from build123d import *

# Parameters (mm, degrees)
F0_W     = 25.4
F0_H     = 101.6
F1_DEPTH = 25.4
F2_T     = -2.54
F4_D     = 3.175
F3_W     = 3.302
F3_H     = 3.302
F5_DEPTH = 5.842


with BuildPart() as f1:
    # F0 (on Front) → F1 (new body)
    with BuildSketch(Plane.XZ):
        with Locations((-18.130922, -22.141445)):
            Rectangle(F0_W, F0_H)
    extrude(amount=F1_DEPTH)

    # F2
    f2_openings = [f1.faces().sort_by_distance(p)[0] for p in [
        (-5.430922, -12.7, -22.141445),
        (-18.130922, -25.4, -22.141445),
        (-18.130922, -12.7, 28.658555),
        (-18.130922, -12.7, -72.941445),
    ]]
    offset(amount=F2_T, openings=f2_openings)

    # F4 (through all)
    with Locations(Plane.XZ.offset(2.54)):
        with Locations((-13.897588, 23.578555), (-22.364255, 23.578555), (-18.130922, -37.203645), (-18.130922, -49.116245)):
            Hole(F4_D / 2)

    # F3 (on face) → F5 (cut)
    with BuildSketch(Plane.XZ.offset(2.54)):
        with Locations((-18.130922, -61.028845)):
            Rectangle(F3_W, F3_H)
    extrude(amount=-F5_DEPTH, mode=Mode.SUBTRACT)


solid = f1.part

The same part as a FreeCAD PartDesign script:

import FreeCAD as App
import Part
import Sketcher

V = App.Vector
Q = App.Units.Quantity


def faces_at(feature, points):
    """Names of the faces that lie closest to the given points."""
    faces = feature.Shape.Faces
    near = lambda p: min(range(len(faces)), key=lambda i: faces[i].distToShape(Part.Vertex(*p))[0])
    return sorted({f"Face{near(p) + 1}" for p in points})


def add_polygon(sketch, points):
    """Adds a closed chain of lines whose ends are joined by coincident constraints."""
    first, n = sketch.GeometryCount, len(points)
    for a, b in zip(points, points[1:] + points[:1]):
        sketch.addGeometry(Part.LineSegment(App.Vector(*a, 0), App.Vector(*b, 0)), False)
    for i in range(n):
        sketch.addConstraint(Sketcher.Constraint("Coincident", first + i, 2, first + (i + 1) % n, 1))

doc = App.newDocument("Part")
body = doc.addObject("PartDesign::Body", "Body")

sketch1 = body.newObject("Sketcher::SketchObject", "Sketch")
sketch1.AttachmentSupport = (doc.getObject("XZ_Plane"), [""])
sketch1.MapMode = "FlatFace"
add_polygon(sketch1, [(-31, 29), (-31, -73), (-5, -73), (-5, 29)])
sketch1.addConstraint([
    Sketcher.Constraint("Vertical", 0),
    Sketcher.Constraint("Horizontal", 1),
    Sketcher.Constraint("Vertical", 2),
    Sketcher.Constraint("Horizontal", 3),
    Sketcher.Constraint("DistanceX", 1, 1, 1, 2, Q("1 in")),
    Sketcher.Constraint("DistanceY", 0, 2, 0, 1, Q("4 in")),
    Sketcher.Constraint("DistanceX", 1, 2, -1, 1, 5.430922),
    Sketcher.Constraint("DistanceY", 0, 2, -1, 1, 72.941445),
])
pad1 = body.newObject("PartDesign::Pad", "Pad")
pad1.Profile = sketch1
pad1.Length = Q("1 in")
doc.recompute()

thickness = body.newObject("PartDesign::Thickness", "Thickness")
thickness.Base = (pad1, faces_at(pad1, [
    (-5.431, -12.7, -22.141),
    (-18.131, -25.4, -22.141),
    (-18.131, -12.7, 28.659),
    (-18.131, -12.7, -72.941),
]))
thickness.Value = Q("0.1 in")
thickness.Reversed = True
thickness.Join = "Arc"

sketch2 = body.newObject("Sketcher::SketchObject", "Sketch001")
sketch2.AttachmentSupport = (doc.getObject("XZ_Plane"), [""])
sketch2.MapMode = "FlatFace"
sketch2.AttachmentOffset = App.Placement(V(0, 0, 0.1 * 25.4), App.Rotation())
sketch2.addGeometry([
    Part.Circle(V(-13.9, 23.6, 0), V(0, 0, 1), 1.6),
    Part.Circle(V(-22.4, 23.6, 0), V(0, 0, 1), 1.6),
    Part.Circle(V(-18.1, -37.2, 0), V(0, 0, 1), 1.6),
    Part.Circle(V(-18.1, -49.1, 0), V(0, 0, 1), 1.6),
], False)
sketch2.addConstraint([
    Sketcher.Constraint("Equal", 0, 1),
    Sketcher.Constraint("Equal", 1, 2),
    Sketcher.Constraint("Equal", 2, 3),
    Sketcher.Constraint("Horizontal", 0, 3, 1, 3),
    Sketcher.Constraint("Vertical", 2, 3, 3, 3),
    Sketcher.Constraint("Diameter", 0, Q("0.125 in")),
    Sketcher.Constraint("DistanceY", 2, 3, 1, 3, Q("2.393 in")),
    Sketcher.Constraint("DistanceY", 3, 3, 2, 3, Q("0.469 in")),
    Sketcher.Constraint("DistanceX", 0, 3, -1, 1, 13.897588),
    Sketcher.Constraint("DistanceY", -1, 1, 0, 3, 23.578555),
    Sketcher.Constraint("DistanceX", 1, 3, -1, 1, 22.364255),
    Sketcher.Constraint("DistanceX", 2, 3, -1, 1, 18.130922),
])
doc.recompute()
hole = body.newObject("PartDesign::Hole", "Hole")
hole.Profile = sketch2
hole.ThreadType = "None"
hole.Diameter = Q("0.125 in")
hole.DepthType = "ThroughAll"

sketch3 = body.newObject("Sketcher::SketchObject", "Sketch002")
sketch3.AttachmentSupport = (doc.getObject("XZ_Plane"), [""])
sketch3.MapMode = "FlatFace"
sketch3.AttachmentOffset = App.Placement(V(0, 0, 0.1 * 25.4), App.Rotation())
add_polygon(sketch3, [(-19.8, -59.4), (-19.8, -62.7), (-16.5, -62.7), (-16.5, -59.4)])
sketch3.addConstraint([
    Sketcher.Constraint("Vertical", 0),
    Sketcher.Constraint("Horizontal", 1),
    Sketcher.Constraint("Vertical", 2),
    Sketcher.Constraint("Horizontal", 3),
    Sketcher.Constraint("Equal", 3, 0),
    Sketcher.Constraint("DistanceX", 1, 1, 1, 2, Q("0.13 in")),
    Sketcher.Constraint("DistanceX", 1, 2, -1, 1, 16.479922),
    Sketcher.Constraint("DistanceY", 0, 2, -1, 1, 62.679845),
])
pocket1 = body.newObject("PartDesign::Pocket", "Pocket")
pocket1.Profile = sketch3
pocket1.Length = Q("0.23 in")

doc.recompute()
